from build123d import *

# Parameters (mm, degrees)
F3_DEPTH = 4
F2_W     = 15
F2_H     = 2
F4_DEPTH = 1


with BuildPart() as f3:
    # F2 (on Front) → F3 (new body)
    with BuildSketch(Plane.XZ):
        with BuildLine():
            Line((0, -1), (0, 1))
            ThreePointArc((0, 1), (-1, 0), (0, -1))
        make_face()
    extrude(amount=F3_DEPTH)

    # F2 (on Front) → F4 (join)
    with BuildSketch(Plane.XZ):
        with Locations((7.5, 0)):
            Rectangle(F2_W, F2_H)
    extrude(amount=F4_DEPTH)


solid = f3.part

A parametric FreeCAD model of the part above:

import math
import FreeCAD as App
import Part
import Sketcher
Q = App.Units.Quantity

doc = App.newDocument("Part")
body = doc.addObject("PartDesign::Body", "Body")

sketch1 = body.newObject("Sketcher::SketchObject", "Sketch")
sketch1.AttachmentSupport = (doc.getObject("XZ_Plane"), [""])
sketch1.MapMode = "FlatFace"
sketch1.addGeometry([
    Part.LineSegment(App.Vector(0, -1, 0), App.Vector(0, 1, 0)),
    Part.ArcOfCircle(Part.Circle(App.Vector(0, 0, 0), App.Vector(0, 0, 1), 1), math.radians(90), math.radians(270)),
], False)
sketch1.addConstraint([
    Sketcher.Constraint("Coincident", 0, 1, 1, 2),
    Sketcher.Constraint("Coincident", 1, 1, 0, 2),
    Sketcher.Constraint("Vertical", 0),
    Sketcher.Constraint("Coincident", 1, 3, -1, 1),
    Sketcher.Constraint("PointOnObject", 0, 1, -2),
    Sketcher.Constraint("Radius", 1, Q("1 mm")),
])
pad1 = body.newObject("PartDesign::Pad", "Pad")
pad1.Profile = sketch1
pad1.Length = 4

sketch2 = body.newObject("Sketcher::SketchObject", "Sketch001")
sketch2.AttachmentSupport = (doc.getObject("XZ_Plane"), [""])
sketch2.MapMode = "FlatFace"
sketch2.addGeometry([
    Part.LineSegment(App.Vector(0, 1, 0), App.Vector(0, -1, 0)),
    Part.LineSegment(App.Vector(0, -1, 0), App.Vector(15, -1, 0)),
    Part.LineSegment(App.Vector(15, -1, 0), App.Vector(15, 1, 0)),
    Part.LineSegment(App.Vector(15, 1, 0), App.Vector(0, 1, 0)),
], False)
sketch2.addConstraint([
    Sketcher.Constraint("Coincident", 0, 2, 1, 1),
    Sketcher.Constraint("Coincident", 1, 2, 2, 1),
    Sketcher.Constraint("Coincident", 2, 2, 3, 1),
    Sketcher.Constraint("Coincident", 3, 2, 0, 1),
    Sketcher.Constraint("Vertical", 0),
    Sketcher.Constraint("Horizontal", 1),
    Sketcher.Constraint("Vertical", 2),
    Sketcher.Constraint("Horizontal", 3),
    Sketcher.Constraint("Symmetric", 0, 2, 3, 2, -1, 1),
    Sketcher.Constraint("DistanceX", 1, 1, 1, 2, Q("15 mm")),
    Sketcher.Constraint("DistanceY", 0, 2, 0, 1, Q("2 mm")),
])
pad2 = body.newObject("PartDesign::Pad", "Pad001")
pad2.Profile = sketch2
pad2.Length = 1

doc.recompute()
